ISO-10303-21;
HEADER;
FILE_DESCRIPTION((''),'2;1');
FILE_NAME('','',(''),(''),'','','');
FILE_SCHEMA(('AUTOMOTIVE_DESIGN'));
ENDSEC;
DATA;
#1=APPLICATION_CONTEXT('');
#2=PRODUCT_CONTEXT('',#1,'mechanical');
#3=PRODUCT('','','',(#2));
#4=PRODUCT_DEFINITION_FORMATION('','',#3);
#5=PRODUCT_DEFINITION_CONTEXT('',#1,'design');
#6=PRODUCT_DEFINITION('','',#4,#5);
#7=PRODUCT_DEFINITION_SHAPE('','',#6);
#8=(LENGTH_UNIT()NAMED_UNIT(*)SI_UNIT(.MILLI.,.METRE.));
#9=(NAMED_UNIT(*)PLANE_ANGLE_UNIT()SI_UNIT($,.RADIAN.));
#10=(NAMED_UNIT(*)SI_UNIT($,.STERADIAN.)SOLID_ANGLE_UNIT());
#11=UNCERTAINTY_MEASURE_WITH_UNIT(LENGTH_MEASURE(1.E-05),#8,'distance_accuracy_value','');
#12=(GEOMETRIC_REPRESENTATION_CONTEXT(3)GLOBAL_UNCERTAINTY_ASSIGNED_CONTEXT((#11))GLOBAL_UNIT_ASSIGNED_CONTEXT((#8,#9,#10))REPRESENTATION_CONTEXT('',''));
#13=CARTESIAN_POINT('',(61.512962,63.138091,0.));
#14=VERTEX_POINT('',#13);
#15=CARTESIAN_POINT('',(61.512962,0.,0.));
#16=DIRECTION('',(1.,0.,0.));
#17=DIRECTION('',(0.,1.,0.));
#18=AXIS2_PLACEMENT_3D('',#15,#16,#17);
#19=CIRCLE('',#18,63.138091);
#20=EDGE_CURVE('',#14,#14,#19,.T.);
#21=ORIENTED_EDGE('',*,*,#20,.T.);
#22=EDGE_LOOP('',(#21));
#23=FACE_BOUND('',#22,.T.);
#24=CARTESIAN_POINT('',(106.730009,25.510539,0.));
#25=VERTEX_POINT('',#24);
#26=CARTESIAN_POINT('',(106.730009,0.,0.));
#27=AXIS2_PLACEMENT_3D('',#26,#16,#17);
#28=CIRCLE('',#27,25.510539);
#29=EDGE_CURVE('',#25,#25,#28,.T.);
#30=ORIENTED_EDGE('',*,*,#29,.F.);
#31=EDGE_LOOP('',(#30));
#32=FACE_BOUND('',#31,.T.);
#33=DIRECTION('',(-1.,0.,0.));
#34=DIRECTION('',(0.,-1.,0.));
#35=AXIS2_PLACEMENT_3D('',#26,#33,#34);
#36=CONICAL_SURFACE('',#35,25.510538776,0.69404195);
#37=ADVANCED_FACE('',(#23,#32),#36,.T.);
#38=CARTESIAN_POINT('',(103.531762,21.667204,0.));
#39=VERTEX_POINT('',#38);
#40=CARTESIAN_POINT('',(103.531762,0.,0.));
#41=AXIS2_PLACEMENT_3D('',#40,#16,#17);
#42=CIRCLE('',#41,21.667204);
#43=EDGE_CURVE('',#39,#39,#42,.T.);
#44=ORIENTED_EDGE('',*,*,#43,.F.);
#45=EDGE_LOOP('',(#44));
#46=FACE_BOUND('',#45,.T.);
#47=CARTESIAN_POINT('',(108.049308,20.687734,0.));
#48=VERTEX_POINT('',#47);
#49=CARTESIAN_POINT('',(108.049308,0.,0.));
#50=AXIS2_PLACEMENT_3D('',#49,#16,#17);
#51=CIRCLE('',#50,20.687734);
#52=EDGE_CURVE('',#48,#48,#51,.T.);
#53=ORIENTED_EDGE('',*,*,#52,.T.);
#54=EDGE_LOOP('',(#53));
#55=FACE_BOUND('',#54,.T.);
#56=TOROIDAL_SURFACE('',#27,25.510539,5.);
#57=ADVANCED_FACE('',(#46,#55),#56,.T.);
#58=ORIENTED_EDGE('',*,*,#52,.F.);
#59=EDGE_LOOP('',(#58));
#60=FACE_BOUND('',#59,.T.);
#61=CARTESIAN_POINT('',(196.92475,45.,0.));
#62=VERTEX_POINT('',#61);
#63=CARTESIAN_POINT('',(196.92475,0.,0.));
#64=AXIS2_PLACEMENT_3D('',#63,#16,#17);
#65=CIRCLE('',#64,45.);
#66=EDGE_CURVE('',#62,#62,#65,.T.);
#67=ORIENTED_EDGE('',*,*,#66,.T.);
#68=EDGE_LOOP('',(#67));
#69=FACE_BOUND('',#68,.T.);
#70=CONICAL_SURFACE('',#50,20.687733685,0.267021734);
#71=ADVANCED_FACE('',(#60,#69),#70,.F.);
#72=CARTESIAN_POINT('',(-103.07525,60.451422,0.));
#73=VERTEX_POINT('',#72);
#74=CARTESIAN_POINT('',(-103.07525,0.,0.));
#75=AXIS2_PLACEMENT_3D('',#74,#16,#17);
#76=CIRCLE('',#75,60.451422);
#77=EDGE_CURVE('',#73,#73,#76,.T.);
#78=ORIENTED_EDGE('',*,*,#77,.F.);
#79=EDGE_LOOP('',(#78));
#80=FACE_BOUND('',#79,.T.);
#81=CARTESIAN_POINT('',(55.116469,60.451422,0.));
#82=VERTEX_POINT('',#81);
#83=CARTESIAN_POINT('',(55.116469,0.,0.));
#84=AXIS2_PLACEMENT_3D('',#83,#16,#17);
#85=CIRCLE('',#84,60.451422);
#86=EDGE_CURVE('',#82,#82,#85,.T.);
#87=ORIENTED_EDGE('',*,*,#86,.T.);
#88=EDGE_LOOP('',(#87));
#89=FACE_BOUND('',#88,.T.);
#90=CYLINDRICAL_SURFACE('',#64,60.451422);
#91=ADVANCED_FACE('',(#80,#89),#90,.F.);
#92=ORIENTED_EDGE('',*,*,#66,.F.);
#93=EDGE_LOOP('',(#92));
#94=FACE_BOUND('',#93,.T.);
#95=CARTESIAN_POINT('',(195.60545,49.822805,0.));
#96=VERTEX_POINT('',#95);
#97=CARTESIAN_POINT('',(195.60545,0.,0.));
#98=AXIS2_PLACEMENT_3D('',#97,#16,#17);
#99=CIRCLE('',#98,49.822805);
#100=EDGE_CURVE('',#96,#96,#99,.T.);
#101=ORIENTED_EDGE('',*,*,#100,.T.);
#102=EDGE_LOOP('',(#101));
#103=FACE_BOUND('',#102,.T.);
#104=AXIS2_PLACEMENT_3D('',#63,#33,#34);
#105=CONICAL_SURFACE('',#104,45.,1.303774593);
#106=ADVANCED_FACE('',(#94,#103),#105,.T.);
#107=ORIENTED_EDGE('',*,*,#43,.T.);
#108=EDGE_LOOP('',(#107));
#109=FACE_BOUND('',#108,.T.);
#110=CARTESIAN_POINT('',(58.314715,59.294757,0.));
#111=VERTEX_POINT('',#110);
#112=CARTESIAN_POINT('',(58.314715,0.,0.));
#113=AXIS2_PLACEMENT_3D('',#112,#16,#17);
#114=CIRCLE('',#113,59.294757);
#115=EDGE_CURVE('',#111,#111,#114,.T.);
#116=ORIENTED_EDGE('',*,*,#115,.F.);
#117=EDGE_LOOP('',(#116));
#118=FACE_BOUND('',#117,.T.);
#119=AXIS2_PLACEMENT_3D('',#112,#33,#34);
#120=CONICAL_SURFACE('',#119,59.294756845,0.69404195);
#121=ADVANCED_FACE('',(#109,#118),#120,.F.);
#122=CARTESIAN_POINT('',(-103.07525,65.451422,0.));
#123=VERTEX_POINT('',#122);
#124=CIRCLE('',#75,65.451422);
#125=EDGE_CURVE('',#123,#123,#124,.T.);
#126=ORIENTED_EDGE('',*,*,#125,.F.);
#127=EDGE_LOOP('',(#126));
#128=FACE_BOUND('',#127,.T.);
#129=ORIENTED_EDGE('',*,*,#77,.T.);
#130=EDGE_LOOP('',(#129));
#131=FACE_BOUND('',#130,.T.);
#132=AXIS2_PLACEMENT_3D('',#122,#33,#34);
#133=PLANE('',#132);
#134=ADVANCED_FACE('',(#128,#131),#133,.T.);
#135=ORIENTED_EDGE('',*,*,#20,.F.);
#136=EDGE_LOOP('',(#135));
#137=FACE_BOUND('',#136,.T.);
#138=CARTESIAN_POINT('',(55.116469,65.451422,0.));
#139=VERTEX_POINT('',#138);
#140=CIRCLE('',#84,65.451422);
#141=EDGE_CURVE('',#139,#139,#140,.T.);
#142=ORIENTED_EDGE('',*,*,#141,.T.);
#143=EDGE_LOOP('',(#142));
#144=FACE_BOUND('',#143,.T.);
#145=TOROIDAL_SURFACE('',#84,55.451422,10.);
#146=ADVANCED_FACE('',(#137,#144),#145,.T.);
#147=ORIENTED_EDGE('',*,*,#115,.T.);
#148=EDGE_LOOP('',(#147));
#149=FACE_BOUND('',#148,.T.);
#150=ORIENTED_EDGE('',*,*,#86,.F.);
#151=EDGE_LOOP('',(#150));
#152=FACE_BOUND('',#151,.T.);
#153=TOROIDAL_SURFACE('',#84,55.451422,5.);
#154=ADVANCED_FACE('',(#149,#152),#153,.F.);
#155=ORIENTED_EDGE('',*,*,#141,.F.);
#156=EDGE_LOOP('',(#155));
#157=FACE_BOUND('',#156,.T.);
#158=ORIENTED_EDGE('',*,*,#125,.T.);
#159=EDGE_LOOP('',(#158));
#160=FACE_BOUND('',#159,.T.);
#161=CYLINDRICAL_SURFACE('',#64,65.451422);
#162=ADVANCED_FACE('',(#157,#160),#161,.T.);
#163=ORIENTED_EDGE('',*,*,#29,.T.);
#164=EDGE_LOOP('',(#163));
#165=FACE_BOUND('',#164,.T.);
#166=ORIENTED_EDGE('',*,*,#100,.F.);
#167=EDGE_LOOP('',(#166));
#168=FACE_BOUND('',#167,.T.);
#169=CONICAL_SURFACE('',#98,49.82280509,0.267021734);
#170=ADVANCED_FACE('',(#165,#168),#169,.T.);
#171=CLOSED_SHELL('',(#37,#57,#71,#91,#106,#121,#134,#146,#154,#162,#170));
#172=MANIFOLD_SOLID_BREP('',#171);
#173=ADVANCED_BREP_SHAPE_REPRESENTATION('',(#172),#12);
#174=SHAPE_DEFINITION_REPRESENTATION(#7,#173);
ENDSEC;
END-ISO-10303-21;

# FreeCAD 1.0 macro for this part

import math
import FreeCAD as App
import Part
import Sketcher

V = App.Vector

doc = App.newDocument("Part")
body = doc.addObject("PartDesign::Body", "Body")

# Sketch on XY plane
sketch1 = body.newObject("Sketcher::SketchObject", "Sketch")
sketch1.AttachmentSupport = (doc.getObject("XY_Plane"), [""])
sketch1.MapMode = "FlatFace"
sketch1.addGeometry([
    Part.LineSegment(V(55.116469, 65.451422, 0), V(-103.07525, 65.451422, 0)),  # 0
    Part.LineSegment(V(-103.07525, 65.451422, 0), V(-103.07525, 60.451422, 0)),  # 1
    Part.LineSegment(V(-103.07525, 60.451422, 0), V(55.116469, 60.451422, 0)),  # 2
    Part.ArcOfCircle(Part.Circle(V(55.116469, 55.451422, 0), V(0, 0, 1), 5), math.radians(50.234325), math.radians(90)),  # 3
    Part.LineSegment(V(58.314715, 59.294757, 0), V(103.531762, 21.667204, 0)),  # 4
    Part.ArcOfCircle(Part.Circle(V(106.730009, 25.510539, 0), V(0, 0, 1), 5), math.radians(-129.765675), math.radians(-74.700782)),  # 5
    Part.LineSegment(V(108.049308, 20.687734, 0), V(196.92475, 45, 0)),  # 6
    Part.LineSegment(V(196.92475, 45, 0), V(195.60545, 49.822805, 0)),  # 7
    Part.LineSegment(V(195.60545, 49.822805, 0), V(106.730009, 25.510539, 0)),  # 8
    Part.LineSegment(V(106.730009, 25.510539, 0), V(61.512962, 63.138091, 0)),  # 9
    Part.ArcOfCircle(Part.Circle(V(55.116469, 55.451422, 0), V(0, 0, 1), 10), math.radians(50.234325), math.radians(90)),  # 10
], False)
sketch1.addConstraint([
    Sketcher.Constraint("Coincident", 0, 2, 1, 1),
    Sketcher.Constraint("Coincident", 1, 2, 2, 1),
    Sketcher.Constraint("Coincident", 2, 2, 3, 2),
    Sketcher.Constraint("Coincident", 3, 1, 4, 1),
    Sketcher.Constraint("Coincident", 4, 2, 5, 1),
    Sketcher.Constraint("Coincident", 5, 2, 6, 1),
    Sketcher.Constraint("Coincident", 6, 2, 7, 1),
    Sketcher.Constraint("Coincident", 7, 2, 8, 1),
    Sketcher.Constraint("Coincident", 8, 2, 9, 1),
    Sketcher.Constraint("Coincident", 9, 2, 10, 1),
    Sketcher.Constraint("Coincident", 10, 2, 0, 1),
    Sketcher.Constraint("Horizontal", 0),
    Sketcher.Constraint("Vertical", 1),
    Sketcher.Constraint("Horizontal", 2),
    Sketcher.Constraint("Coincident", 10, 3, 3, 3),
    Sketcher.Constraint("Coincident", 8, 2, 5, 3),
    Sketcher.Constraint("Radius", 3, 5.0),
    Sketcher.Constraint("Radius", 5, 5.0),
    Sketcher.Constraint("Radius", 10, 10.0),
    Sketcher.Constraint("Distance", 7, 5.0),
    Sketcher.Constraint("DistanceY", -1, 1, 6, 2, 45.0),
    Sketcher.Constraint("DistanceX", 0, 2, 0, 1, 158.191719),
    Sketcher.Constraint("DistanceX", 2, 1, 2, 2, 158.191719),
    Sketcher.Constraint("DistanceX", 5, 3, 5, 2, 1.319299),
    Sketcher.Constraint("DistanceX", 7, 2, 6, 2, 1.319299),
    Sketcher.Constraint("DistanceY", 4, 2, 7, 2, 28.155601),
    Sketcher.Constraint("Distance", 6, 92.140818),
    Sketcher.Constraint("DistanceX", -1, 1, 3, 3, 55.116469),
    Sketcher.Constraint("DistanceX", -1, 1, 5, 3, 106.730009),
    Sketcher.Constraint("DistanceY", -1, 1, 5, 3, 25.510539),
    Sketcher.Constraint("DistanceX", 0, 2, -1, 1, 103.07525),
    Sketcher.Constraint("DistanceX", -1, 1, 9, 2, 61.512962),
    Sketcher.Constraint("DistanceY", -1, 1, 9, 2, 63.138091),
    Sketcher.Constraint("DistanceY", 5, 3, 3, 1, 33.784218),
])
revolution = body.newObject("PartDesign::Revolution", "Revolution")
revolution.Profile = sketch1
revolution.ReferenceAxis = (sketch1, ["H_Axis"])
revolution.Angle = 360

doc.recompute()
